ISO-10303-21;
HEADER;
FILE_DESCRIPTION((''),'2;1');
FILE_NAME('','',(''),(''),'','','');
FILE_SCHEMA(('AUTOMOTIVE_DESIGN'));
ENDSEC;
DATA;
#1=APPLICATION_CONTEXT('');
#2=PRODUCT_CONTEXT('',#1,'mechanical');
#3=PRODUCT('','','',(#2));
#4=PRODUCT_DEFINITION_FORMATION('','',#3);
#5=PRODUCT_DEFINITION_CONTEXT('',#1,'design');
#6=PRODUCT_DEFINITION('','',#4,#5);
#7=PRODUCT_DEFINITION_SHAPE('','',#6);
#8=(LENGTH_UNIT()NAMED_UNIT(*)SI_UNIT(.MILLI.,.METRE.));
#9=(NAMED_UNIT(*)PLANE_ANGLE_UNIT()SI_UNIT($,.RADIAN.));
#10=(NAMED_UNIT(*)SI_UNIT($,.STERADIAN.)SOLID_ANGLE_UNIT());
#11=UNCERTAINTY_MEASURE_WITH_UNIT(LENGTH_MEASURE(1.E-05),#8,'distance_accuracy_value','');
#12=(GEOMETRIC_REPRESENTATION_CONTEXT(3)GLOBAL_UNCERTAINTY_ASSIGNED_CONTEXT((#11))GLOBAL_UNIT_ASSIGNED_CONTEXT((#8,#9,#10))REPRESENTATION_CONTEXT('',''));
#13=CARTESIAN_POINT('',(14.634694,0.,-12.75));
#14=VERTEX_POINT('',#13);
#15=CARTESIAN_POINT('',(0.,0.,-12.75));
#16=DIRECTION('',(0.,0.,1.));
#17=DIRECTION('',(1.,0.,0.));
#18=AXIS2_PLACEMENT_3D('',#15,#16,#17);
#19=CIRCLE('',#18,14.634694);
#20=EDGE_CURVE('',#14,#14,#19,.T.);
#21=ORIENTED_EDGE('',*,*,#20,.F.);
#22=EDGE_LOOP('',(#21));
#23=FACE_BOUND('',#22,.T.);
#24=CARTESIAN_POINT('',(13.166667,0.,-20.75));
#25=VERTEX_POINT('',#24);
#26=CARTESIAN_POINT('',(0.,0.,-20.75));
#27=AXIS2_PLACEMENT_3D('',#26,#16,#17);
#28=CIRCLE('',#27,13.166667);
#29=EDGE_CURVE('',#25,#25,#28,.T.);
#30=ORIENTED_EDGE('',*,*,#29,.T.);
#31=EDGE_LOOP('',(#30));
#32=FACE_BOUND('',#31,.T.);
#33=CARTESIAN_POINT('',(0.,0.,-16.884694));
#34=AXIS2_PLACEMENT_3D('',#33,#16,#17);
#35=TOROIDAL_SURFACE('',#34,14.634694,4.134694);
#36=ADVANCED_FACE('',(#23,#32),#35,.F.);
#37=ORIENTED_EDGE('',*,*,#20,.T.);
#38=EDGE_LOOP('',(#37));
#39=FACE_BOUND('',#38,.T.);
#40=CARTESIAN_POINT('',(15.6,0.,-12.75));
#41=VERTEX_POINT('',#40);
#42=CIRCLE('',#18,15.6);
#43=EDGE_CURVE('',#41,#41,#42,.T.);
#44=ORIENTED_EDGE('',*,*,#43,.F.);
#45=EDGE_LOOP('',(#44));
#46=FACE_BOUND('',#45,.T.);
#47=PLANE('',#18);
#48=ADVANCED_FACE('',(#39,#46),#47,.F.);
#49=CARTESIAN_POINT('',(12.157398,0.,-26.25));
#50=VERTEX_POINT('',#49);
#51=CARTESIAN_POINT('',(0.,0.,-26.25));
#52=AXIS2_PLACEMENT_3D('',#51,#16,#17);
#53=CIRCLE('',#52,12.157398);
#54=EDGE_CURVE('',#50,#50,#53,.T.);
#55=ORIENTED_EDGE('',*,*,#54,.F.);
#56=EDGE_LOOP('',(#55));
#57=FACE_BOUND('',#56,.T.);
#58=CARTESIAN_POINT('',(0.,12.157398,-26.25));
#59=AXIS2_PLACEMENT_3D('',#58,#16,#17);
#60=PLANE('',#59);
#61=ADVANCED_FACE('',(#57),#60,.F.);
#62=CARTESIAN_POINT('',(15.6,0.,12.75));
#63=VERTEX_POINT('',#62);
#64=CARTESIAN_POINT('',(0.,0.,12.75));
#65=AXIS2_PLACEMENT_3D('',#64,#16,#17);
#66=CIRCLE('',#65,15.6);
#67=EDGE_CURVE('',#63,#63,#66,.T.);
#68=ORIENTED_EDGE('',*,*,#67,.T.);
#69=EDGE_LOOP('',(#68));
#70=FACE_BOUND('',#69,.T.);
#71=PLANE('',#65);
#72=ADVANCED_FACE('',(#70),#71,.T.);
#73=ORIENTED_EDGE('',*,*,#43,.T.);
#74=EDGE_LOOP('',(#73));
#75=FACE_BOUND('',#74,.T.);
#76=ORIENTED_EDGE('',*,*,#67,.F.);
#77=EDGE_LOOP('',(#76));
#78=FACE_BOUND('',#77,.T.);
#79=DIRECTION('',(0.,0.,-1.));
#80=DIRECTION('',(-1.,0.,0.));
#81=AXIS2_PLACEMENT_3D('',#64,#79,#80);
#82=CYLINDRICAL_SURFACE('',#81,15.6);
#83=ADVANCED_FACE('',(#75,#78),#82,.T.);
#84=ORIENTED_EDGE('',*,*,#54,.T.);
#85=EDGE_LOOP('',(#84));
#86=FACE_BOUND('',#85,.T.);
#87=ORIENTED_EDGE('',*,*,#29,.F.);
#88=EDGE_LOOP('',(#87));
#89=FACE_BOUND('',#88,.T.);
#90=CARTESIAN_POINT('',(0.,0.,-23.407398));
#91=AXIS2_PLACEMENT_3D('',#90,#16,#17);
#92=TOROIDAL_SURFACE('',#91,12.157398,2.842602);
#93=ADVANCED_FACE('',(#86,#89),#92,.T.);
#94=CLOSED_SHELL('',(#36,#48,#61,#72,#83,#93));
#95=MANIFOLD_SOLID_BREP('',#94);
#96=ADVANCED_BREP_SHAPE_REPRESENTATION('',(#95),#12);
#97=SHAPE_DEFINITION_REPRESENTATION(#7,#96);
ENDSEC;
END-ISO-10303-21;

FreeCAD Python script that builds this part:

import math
import FreeCAD as App
import Part
import Sketcher

V = App.Vector

doc = App.newDocument("Part")
body = doc.addObject("PartDesign::Body", "Body")

# Sketch on XY plane
sketch1 = body.newObject("Sketcher::SketchObject", "Sketch")
sketch1.AttachmentSupport = (doc.getObject("XY_Plane"), [""])
sketch1.MapMode = "FlatFace"
sketch1.addGeometry(Part.Circle(V(0, 0, 0), V(0, 0, 1), 16), False)
sketch1.addConstraint([
    Sketcher.Constraint("Coincident", 0, 3, -1, 1),
    Sketcher.Constraint("Diameter", 0, 31.2),
])
pad1 = body.newObject("PartDesign::Pad", "Pad")
pad1.Profile = sketch1
pad1.Length = 25.5
pad1.Midplane = True

# Sketch on YZ plane
sketch2 = body.newObject("Sketcher::SketchObject", "Sketch001")
sketch2.AttachmentSupport = (doc.getObject("YZ_Plane"), [""])
sketch2.MapMode = "FlatFace"
sketch2.addGeometry([
    Part.LineSegment(V(0, -12.8, 0), V(0, -26.2, 0)),  # 0
    Part.LineSegment(V(0, -26.2, 0), V(12.2, -26.2, 0)),  # 1
    Part.ArcOfCircle(Part.Circle(V(12.2, -23.4, 0), V(0, 0, 1), 2.8), math.radians(-90), math.radians(69)),  # 2
    Part.ArcOfCircle(Part.Circle(V(14.6, -16.9, 0), V(0, 0, 1), 4.1), math.radians(90), math.radians(249)),  # 3
    Part.LineSegment(V(14.6, -12.8, 0), V(0, -12.8, 0)),  # 4
], False)
sketch2.addConstraint([
    Sketcher.Constraint("Coincident", 0, 2, 1, 1),
    Sketcher.Constraint("Tangent", 1, 2, 2, 1),
    Sketcher.Constraint("Tangent", 2, 2, 3, 2),
    Sketcher.Constraint("Tangent", 3, 1, 4, 1),
    Sketcher.Constraint("Coincident", 4, 2, 0, 1),
    Sketcher.Constraint("Vertical", 0),
    Sketcher.Constraint("Horizontal", 1),
    Sketcher.Constraint("Horizontal", 4),
    Sketcher.Constraint("PointOnObject", 0, 2, -2),
    Sketcher.Constraint("DistanceY", 0, 2, 0, 1, 13.5),
    Sketcher.Constraint("DistanceY", 2, 2, 3, 1, 8.0),
    Sketcher.Constraint("DistanceY", 0, 2, -1, 1, 26.25),
    Sketcher.Constraint("Radius", 2, 2.842602),
    Sketcher.Constraint("DistanceX", 1, 1, 1, 2, 12.157398),
])
revolution = body.newObject("PartDesign::Revolution", "Revolution")
revolution.Profile = sketch2
revolution.ReferenceAxis = (sketch2, ["V_Axis"])
revolution.Angle = 360

doc.recompute()
